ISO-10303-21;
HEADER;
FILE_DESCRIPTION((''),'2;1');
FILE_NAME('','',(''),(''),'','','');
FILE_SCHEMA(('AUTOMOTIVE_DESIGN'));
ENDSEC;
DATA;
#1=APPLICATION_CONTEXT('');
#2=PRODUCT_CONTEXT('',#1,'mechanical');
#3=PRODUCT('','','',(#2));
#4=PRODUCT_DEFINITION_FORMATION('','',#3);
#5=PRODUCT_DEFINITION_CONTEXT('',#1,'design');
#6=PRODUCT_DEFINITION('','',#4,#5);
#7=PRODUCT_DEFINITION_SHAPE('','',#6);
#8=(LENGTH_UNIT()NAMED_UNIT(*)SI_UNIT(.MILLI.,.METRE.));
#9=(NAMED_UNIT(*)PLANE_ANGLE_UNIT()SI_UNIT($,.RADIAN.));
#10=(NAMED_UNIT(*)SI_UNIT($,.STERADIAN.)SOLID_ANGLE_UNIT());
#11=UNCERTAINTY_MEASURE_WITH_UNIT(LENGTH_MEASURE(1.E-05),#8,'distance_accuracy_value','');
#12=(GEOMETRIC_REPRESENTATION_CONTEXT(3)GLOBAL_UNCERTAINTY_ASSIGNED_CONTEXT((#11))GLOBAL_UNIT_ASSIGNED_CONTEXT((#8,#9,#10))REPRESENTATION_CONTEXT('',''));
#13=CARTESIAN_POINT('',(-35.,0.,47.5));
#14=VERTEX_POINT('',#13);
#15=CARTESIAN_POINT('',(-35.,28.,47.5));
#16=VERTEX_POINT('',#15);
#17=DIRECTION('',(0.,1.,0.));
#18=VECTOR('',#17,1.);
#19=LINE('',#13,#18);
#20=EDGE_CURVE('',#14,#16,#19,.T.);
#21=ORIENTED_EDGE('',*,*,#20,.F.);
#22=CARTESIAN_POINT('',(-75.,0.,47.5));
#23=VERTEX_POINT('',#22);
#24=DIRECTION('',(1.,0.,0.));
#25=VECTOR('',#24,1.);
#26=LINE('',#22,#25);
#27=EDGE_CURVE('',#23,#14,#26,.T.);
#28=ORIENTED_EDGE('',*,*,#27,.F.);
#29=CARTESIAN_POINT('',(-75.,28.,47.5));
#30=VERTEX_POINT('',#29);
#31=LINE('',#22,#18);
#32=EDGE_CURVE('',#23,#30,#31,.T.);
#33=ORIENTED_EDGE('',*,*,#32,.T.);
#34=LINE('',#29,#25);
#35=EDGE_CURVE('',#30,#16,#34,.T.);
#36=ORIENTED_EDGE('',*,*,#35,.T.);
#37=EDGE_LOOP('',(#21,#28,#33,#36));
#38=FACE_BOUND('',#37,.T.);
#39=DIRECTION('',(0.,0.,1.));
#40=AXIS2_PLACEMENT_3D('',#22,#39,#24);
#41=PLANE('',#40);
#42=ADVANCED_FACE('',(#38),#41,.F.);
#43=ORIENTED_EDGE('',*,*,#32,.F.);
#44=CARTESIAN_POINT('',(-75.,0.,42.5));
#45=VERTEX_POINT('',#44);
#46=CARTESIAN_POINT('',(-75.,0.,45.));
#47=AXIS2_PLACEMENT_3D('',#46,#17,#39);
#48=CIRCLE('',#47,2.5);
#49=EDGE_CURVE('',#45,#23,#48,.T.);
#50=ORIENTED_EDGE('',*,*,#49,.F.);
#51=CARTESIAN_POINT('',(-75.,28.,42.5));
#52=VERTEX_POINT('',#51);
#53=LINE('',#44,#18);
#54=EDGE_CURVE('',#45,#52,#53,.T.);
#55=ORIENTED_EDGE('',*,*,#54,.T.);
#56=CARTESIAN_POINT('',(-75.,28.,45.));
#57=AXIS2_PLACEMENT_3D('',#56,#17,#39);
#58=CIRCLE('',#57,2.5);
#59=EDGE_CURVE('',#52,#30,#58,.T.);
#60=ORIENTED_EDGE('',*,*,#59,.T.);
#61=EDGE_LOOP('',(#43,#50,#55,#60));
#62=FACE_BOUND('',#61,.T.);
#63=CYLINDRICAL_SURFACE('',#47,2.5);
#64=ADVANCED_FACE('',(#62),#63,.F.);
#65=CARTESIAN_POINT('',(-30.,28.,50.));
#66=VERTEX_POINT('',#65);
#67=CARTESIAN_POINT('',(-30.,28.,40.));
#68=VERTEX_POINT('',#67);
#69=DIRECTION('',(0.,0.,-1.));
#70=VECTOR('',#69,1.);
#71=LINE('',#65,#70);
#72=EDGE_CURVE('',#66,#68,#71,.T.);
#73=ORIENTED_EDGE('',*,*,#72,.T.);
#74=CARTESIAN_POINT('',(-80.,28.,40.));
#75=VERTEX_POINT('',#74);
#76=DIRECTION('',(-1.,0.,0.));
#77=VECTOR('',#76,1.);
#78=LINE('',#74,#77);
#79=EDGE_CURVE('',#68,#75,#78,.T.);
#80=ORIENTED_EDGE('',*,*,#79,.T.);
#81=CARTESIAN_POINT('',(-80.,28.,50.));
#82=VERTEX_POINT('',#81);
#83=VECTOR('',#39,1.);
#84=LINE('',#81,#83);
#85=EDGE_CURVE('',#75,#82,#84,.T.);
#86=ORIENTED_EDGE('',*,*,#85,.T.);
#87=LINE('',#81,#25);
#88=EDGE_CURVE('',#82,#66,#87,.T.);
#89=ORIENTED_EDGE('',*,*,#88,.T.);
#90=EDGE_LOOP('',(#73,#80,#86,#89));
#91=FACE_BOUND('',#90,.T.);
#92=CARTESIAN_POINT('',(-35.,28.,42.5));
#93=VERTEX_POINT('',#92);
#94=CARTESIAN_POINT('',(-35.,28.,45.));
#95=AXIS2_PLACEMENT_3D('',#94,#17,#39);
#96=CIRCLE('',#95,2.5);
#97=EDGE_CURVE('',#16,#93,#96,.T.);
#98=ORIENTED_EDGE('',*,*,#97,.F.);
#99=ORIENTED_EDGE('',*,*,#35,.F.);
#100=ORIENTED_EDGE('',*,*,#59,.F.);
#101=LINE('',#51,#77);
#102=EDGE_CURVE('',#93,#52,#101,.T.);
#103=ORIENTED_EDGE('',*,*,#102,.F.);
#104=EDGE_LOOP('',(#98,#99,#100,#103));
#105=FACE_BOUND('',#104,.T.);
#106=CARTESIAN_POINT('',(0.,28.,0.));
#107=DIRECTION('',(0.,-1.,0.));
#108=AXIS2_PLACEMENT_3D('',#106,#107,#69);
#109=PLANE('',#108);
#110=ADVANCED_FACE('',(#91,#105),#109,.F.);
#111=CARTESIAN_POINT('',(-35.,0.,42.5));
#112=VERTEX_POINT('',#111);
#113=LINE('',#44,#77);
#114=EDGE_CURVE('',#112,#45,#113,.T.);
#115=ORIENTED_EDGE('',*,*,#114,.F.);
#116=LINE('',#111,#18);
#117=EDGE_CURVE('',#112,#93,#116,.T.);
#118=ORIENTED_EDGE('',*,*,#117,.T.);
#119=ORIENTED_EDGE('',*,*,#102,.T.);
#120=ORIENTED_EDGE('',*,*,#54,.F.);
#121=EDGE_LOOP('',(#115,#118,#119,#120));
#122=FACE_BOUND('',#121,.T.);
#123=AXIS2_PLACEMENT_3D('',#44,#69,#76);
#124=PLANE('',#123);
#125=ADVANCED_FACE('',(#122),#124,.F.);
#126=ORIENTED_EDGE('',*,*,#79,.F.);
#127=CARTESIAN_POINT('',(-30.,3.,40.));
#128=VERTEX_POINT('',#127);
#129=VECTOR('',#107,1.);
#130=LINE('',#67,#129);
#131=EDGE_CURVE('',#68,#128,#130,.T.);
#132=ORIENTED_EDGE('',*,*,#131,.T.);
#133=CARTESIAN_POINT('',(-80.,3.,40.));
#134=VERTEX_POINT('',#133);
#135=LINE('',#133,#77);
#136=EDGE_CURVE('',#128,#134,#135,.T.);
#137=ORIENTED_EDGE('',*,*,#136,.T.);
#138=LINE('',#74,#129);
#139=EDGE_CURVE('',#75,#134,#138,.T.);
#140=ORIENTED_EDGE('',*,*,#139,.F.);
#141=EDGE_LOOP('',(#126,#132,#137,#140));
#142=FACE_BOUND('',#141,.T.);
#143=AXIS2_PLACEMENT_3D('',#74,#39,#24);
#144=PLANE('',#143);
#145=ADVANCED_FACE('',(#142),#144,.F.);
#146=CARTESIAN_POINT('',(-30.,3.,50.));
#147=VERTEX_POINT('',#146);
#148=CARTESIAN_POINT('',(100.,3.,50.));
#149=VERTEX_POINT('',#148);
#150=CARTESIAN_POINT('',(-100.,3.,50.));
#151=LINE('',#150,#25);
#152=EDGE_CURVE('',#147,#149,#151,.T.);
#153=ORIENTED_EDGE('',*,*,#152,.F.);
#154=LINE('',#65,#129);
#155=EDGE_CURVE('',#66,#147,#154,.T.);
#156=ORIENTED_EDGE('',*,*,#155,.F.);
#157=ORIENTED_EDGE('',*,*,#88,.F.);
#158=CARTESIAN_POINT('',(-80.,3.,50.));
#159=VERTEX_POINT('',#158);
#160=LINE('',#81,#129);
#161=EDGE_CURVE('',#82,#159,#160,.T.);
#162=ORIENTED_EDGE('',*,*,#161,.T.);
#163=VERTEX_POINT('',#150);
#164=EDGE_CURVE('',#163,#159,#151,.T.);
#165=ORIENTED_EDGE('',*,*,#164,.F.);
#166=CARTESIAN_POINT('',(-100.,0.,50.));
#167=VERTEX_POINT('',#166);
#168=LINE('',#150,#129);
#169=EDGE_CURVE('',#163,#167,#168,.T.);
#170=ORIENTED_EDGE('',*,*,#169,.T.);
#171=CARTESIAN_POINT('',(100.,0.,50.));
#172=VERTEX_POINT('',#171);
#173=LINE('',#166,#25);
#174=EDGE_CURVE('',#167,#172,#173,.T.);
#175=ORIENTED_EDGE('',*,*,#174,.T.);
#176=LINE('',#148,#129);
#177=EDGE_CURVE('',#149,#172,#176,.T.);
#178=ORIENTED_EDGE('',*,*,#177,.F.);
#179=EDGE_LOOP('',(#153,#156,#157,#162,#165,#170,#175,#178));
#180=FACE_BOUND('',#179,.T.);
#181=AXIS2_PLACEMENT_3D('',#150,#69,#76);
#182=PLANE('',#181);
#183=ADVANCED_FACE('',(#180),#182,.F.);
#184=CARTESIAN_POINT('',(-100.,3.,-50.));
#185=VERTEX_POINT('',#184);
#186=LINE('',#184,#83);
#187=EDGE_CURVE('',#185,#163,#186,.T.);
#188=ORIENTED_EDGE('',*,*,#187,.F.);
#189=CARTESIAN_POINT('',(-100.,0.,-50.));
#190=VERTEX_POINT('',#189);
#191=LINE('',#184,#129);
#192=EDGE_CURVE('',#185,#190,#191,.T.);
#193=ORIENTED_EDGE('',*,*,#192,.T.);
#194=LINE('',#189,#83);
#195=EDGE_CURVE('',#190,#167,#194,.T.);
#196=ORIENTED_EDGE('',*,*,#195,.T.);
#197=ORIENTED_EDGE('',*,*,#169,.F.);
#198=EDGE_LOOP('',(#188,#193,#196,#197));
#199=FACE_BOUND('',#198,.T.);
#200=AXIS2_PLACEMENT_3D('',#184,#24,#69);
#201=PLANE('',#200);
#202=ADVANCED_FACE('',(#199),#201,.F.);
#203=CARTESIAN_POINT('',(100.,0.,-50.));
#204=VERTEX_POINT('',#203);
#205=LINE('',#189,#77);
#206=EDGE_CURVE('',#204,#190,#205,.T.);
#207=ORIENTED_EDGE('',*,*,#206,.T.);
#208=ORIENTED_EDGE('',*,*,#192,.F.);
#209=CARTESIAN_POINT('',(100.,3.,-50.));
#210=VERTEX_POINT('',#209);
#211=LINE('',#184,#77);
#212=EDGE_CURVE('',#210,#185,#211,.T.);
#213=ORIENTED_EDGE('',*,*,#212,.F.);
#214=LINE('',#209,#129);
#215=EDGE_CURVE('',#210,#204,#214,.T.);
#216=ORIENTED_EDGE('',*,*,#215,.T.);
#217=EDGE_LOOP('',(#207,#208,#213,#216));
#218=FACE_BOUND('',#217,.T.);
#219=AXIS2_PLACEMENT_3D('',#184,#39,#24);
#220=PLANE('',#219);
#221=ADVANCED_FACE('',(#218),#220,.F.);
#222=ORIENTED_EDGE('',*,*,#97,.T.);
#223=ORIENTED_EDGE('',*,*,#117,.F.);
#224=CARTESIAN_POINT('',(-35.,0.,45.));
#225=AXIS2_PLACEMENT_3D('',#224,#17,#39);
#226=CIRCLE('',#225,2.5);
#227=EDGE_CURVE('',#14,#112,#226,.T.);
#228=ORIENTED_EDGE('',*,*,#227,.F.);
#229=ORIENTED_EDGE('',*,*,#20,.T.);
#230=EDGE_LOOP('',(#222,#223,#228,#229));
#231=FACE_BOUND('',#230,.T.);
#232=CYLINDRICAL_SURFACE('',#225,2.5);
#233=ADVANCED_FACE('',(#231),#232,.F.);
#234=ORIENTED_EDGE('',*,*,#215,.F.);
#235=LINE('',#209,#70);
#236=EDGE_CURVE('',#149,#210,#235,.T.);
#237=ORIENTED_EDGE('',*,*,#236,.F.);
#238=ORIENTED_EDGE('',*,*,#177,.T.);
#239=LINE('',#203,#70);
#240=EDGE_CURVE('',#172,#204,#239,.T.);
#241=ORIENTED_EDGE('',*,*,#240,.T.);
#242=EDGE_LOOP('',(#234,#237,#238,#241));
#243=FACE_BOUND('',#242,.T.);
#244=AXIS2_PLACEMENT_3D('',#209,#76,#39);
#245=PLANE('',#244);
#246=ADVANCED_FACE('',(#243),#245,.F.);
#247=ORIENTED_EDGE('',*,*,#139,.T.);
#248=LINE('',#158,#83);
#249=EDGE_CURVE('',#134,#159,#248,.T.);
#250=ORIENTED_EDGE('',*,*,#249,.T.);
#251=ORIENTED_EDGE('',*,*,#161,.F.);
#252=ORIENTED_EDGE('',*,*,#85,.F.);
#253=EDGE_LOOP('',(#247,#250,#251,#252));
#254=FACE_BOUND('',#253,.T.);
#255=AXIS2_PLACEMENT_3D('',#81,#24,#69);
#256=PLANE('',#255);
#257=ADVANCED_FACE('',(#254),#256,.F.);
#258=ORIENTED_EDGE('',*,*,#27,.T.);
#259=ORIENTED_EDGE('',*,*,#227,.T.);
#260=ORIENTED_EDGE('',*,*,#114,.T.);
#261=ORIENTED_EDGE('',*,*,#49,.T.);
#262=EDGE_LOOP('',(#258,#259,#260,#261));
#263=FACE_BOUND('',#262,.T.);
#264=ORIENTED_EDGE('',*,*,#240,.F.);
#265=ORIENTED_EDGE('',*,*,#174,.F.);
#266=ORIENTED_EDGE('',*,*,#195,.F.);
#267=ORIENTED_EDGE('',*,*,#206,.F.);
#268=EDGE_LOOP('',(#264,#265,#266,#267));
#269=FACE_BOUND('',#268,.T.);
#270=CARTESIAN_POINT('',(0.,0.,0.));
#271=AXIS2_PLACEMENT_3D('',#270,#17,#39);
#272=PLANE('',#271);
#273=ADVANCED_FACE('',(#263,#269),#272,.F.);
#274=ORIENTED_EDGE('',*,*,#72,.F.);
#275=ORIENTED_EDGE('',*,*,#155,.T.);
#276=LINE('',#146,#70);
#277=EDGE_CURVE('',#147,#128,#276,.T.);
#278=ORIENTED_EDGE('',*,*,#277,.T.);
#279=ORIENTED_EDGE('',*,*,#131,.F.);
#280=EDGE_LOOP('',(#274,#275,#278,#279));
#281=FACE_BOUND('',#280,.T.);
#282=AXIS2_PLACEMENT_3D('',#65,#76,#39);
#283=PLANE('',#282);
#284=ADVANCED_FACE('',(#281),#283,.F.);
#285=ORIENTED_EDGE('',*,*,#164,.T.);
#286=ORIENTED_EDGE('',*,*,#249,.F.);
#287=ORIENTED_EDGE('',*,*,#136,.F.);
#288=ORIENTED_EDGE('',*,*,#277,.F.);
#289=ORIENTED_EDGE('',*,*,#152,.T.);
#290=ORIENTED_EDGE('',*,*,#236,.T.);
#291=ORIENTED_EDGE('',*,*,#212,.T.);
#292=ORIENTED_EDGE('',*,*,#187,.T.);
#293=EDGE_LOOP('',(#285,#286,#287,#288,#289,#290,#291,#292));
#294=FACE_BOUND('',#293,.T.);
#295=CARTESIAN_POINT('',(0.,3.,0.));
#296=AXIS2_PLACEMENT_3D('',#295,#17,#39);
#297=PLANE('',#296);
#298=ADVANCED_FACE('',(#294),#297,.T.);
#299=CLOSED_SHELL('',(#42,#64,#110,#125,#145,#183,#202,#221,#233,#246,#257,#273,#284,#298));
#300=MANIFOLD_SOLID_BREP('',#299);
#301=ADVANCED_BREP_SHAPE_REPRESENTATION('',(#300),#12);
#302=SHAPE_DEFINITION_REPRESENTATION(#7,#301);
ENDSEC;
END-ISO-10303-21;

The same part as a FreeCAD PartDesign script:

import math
import FreeCAD as App
import Part
import Sketcher

V = App.Vector

doc = App.newDocument("Part")
params = doc.addObject("Spreadsheet::Sheet", "Params")
for row, (alias, value) in enumerate([
    ("sketch1_width", "200 mm"),
    ("sketch1_height", "100 mm"),
    ("pad1_length", "3 mm"),
    ("sketch2_width", "50 mm"),
    ("sketch2_height", "10 mm"),
    ("pad2_length", "25 mm"),
    ("sketch3_radius", "2.5 mm"),
    ("sketch3_width", "40 mm"),
], start=1):
    params.set(f"A{row}", alias)
    params.set(f"B{row}", "=" + value)
    params.setAlias(f"B{row}", alias)

body = doc.addObject("PartDesign::Body", "Body")

sketch1 = body.newObject("Sketcher::SketchObject", "Sketch")
sketch1.AttachmentSupport = (doc.getObject("XZ_Plane"), [""])
sketch1.MapMode = "FlatFace"
sketch1.addGeometry([
    Part.LineSegment(V(-100, -50, 0), V(-100, 50, 0)),
    Part.LineSegment(V(-100, 50, 0), V(100, 50, 0)),
    Part.LineSegment(V(100, 50, 0), V(100, -50, 0)),
    Part.LineSegment(V(100, -50, 0), V(-100, -50, 0)),
], False)
sketch1.addConstraint([
    Sketcher.Constraint("Coincident", 0, 2, 1, 1),
    Sketcher.Constraint("Coincident", 1, 2, 2, 1),
    Sketcher.Constraint("Coincident", 2, 2, 3, 1),
    Sketcher.Constraint("Coincident", 3, 2, 0, 1),
    Sketcher.Constraint("Vertical", 0),
    Sketcher.Constraint("Horizontal", 1),
    Sketcher.Constraint("Vertical", 2),
    Sketcher.Constraint("Horizontal", 3),
    Sketcher.Constraint("Symmetric", 0, 2, 2, 2, -1, 1),
    Sketcher.Constraint("DistanceX", 1, 1, 1, 2, 200.0),
    Sketcher.Constraint("DistanceY", 0, 1, 0, 2, 100.0),
])
sketch1.setExpression("Constraints[9]", "Params.sketch1_width")
sketch1.setExpression("Constraints[10]", "Params.sketch1_height")
pad1 = body.newObject("PartDesign::Pad", "Pad")
pad1.Profile = sketch1
pad1.setExpression("Length", "Params.pad1_length")
pad1.Reversed = True

sketch2 = body.newObject("Sketcher::SketchObject", "Sketch001")
sketch2.AttachmentSupport = (doc.getObject("XZ_Plane"), [""])
sketch2.MapMode = "FlatFace"
sketch2.AttachmentOffset = App.Placement(V(0, 0, -3), App.Rotation())
sketch2.addGeometry([
    Part.LineSegment(V(-80, 40, 0), V(-80, 50, 0)),
    Part.LineSegment(V(-80, 50, 0), V(-30, 50, 0)),
    Part.LineSegment(V(-30, 50, 0), V(-30, 40, 0)),
    Part.LineSegment(V(-30, 40, 0), V(-80, 40, 0)),
], False)
sketch2.addConstraint([
    Sketcher.Constraint("Coincident", 0, 2, 1, 1),
    Sketcher.Constraint("Coincident", 1, 2, 2, 1),
    Sketcher.Constraint("Coincident", 2, 2, 3, 1),
    Sketcher.Constraint("Coincident", 3, 2, 0, 1),
    Sketcher.Constraint("Vertical", 0),
    Sketcher.Constraint("Horizontal", 1),
    Sketcher.Constraint("Vertical", 2),
    Sketcher.Constraint("Horizontal", 3),
    Sketcher.Constraint("DistanceX", 1, 1, 1, 2, 50.0),
    Sketcher.Constraint("DistanceY", 0, 1, 0, 2, 10.0),
    Sketcher.Constraint("DistanceX", 0, 2, -1, 1, 80.0),
    Sketcher.Constraint("DistanceY", -1, 1, 0, 2, 50.0),
])
sketch2.setExpression("Constraints[8]", "Params.sketch2_width")
sketch2.setExpression("Constraints[9]", "Params.sketch2_height")
pad2 = body.newObject("PartDesign::Pad", "Pad001")
pad2.Profile = sketch2
pad2.setExpression("Length", "Params.pad2_length")
pad2.Reversed = True

sketch3 = body.newObject("Sketcher::SketchObject", "Sketch002")
sketch3.AttachmentSupport = (doc.getObject("XZ_Plane"), [""])
sketch3.MapMode = "FlatFace"
sketch3.AttachmentOffset = App.Placement(V(0, 0, -28), App.Rotation())
sketch3.addGeometry([
    Part.LineSegment(V(-35, 42.5, 0), V(-75, 42.5, 0)),
    Part.ArcOfCircle(Part.Circle(V(-75, 45, 0), V(0, 0, 1), 2.5), math.radians(90), math.radians(270)),
    Part.LineSegment(V(-75, 47.5, 0), V(-35, 47.5, 0)),
    Part.ArcOfCircle(Part.Circle(V(-35, 45, 0), V(0, 0, 1), 2.5), math.radians(-90), math.radians(90)),
], False)
sketch3.addConstraint([
    Sketcher.Constraint("Tangent", 0, 2, 1, 2),
    Sketcher.Constraint("Tangent", 1, 1, 2, 1),
    Sketcher.Constraint("Tangent", 2, 2, 3, 2),
    Sketcher.Constraint("Tangent", 3, 1, 0, 1),
    Sketcher.Constraint("Horizontal", 0),
    Sketcher.Constraint("Horizontal", 2),
    Sketcher.Constraint("Radius", 1, 2.5),
    Sketcher.Constraint("DistanceX", 0, 2, 0, 1, 40.0),
    Sketcher.Constraint("DistanceX", 1, 3, -1, 1, 75.0),
    Sketcher.Constraint("DistanceY", -1, 1, 1, 3, 45.0),
])
sketch3.setExpression("Constraints[6]", "Params.sketch3_radius")
sketch3.setExpression("Constraints[7]", "Params.sketch3_width")
pocket1 = body.newObject("PartDesign::Pocket", "Pocket")
pocket1.Profile = sketch3
pocket1.Type = "ThroughAll"
pocket1.Reversed = True

doc.recompute()
